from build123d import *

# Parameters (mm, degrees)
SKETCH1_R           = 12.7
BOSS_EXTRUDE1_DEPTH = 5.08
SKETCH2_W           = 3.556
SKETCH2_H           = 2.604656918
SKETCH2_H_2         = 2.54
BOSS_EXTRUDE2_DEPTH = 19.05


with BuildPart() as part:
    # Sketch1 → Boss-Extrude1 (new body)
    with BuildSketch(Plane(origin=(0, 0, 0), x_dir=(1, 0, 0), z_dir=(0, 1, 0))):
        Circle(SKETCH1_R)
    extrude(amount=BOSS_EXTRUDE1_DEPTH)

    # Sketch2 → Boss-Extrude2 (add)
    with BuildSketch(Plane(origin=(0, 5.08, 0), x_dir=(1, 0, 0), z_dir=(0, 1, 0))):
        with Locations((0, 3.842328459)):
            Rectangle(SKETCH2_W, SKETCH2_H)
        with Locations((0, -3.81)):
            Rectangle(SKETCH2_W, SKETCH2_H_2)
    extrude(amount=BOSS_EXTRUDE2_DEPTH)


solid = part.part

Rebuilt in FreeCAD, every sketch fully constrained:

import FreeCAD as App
import Part
import Sketcher
Q = App.Units.Quantity

doc = App.newDocument("Part")
body = doc.addObject("PartDesign::Body", "Body")

# Sketch on XZ plane
sketch1 = doc.addObject("Sketcher::SketchObject", "Sketch")
body.addObject(sketch1)
sketch1.AttachmentSupport = (doc.XZ_Plane, [""])
sketch1.MapMode = "FlatFace"
sketch1.addGeometry(Part.Circle(App.Vector(0, 0, 0), App.Vector(0, 0, 1), 13), False)
sketch1.addConstraint([
    Sketcher.Constraint("Coincident", 0, 3, -1, 1),
    Sketcher.Constraint("Diameter", 0, Q("1 in")),
])
pad1 = doc.addObject("PartDesign::Pad", "Pad")
body.addObject(pad1)
pad1.Profile = sketch1
pad1.Length = Q("0.2 in")
pad1.Reversed = True

# Sketch on XZ plane
sketch2 = doc.addObject("Sketcher::SketchObject", "Sketch001")
body.addObject(sketch2)
sketch2.AttachmentSupport = (doc.XZ_Plane, [""])
sketch2.MapMode = "FlatFace"
sketch2.AttachmentOffset = App.Placement(App.Vector(0, 0, -0.2 * 25.4), App.Rotation())
sketch2.addGeometry([
    Part.LineSegment(App.Vector(-1.8, -5.1, 0), App.Vector(-1.8, -2.5, 0)),  # 0
    Part.LineSegment(App.Vector(-1.8, -2.5, 0), App.Vector(1.8, -2.5, 0)),  # 1
    Part.LineSegment(App.Vector(1.8, -2.5, 0), App.Vector(1.8, -5.1, 0)),  # 2
    Part.LineSegment(App.Vector(1.8, -5.1, 0), App.Vector(-1.8, -5.1, 0)),  # 3
    Part.LineSegment(App.Vector(-1.8, 2.5, 0), App.Vector(-1.8, 5.1, 0)),  # 4
    Part.LineSegment(App.Vector(-1.8, 5.1, 0), App.Vector(1.8, 5.1, 0)),  # 5
    Part.LineSegment(App.Vector(1.8, 5.1, 0), App.Vector(1.8, 2.5, 0)),  # 6
    Part.LineSegment(App.Vector(1.8, 2.5, 0), App.Vector(-1.8, 2.5, 0)),  # 7
], False)
sketch2.addConstraint([
    Sketcher.Constraint("Coincident", 0, 2, 1, 1),
    Sketcher.Constraint("Coincident", 1, 2, 2, 1),
    Sketcher.Constraint("Coincident", 2, 2, 3, 1),
    Sketcher.Constraint("Coincident", 3, 2, 0, 1),
    Sketcher.Constraint("Coincident", 4, 2, 5, 1),
    Sketcher.Constraint("Coincident", 5, 2, 6, 1),
    Sketcher.Constraint("Coincident", 6, 2, 7, 1),
    Sketcher.Constraint("Coincident", 7, 2, 4, 1),
    Sketcher.Constraint("Vertical", 0),
    Sketcher.Constraint("Horizontal", 1),
    Sketcher.Constraint("Vertical", 2),
    Sketcher.Constraint("Horizontal", 3),
    Sketcher.Constraint("Vertical", 4),
    Sketcher.Constraint("Horizontal", 5),
    Sketcher.Constraint("Vertical", 6),
    Sketcher.Constraint("Horizontal", 7),
    Sketcher.Constraint("Symmetric", 0, 2, 6, 2, -1, 1),
    Sketcher.Constraint("Vertical", 3, 2, 4, 2),
    Sketcher.Constraint("Vertical", 2, 2, 5, 2),
    Sketcher.Constraint("DistanceY", 4, 1, 4, 2, Q("0.1 in")),
    Sketcher.Constraint("DistanceX", 1, 1, 1, 2, Q("0.14 in")),
    Sketcher.Constraint("DistanceY", 0, 2, -1, 1, Q("0.1 in")),
    Sketcher.Constraint("DistanceY", 0, 1, 0, 2, Q("2.604657 mm")),
])
pad2 = doc.addObject("PartDesign::Pad", "Pad001")
body.addObject(pad2)
pad2.Profile = sketch2
pad2.Length = Q("0.75 in")
pad2.Reversed = True

doc.recompute()
